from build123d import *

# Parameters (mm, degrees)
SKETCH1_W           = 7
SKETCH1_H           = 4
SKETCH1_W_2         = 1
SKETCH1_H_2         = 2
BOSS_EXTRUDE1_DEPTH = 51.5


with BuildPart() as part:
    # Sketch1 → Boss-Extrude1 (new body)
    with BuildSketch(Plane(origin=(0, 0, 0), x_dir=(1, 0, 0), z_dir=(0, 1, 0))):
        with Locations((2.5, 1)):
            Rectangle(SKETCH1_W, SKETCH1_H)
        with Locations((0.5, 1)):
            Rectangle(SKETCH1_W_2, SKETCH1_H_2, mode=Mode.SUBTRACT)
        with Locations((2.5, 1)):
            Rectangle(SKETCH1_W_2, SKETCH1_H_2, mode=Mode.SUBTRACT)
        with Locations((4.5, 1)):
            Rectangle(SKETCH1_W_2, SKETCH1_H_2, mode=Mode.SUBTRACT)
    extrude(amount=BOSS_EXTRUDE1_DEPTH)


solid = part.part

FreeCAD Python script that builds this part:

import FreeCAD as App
import Part
import Sketcher
from FreeCAD import Vector


def add_polygon(sketch, points):
    """Adds a closed chain of lines whose ends are joined by coincident constraints."""
    first, n = sketch.GeometryCount, len(points)
    for a, b in zip(points, points[1:] + points[:1]):
        sketch.addGeometry(Part.LineSegment(App.Vector(*a, 0), App.Vector(*b, 0)), False)
    for i in range(n):
        sketch.addConstraint(Sketcher.Constraint("Coincident", first + i, 2, first + (i + 1) % n, 1))

doc = App.newDocument("Part")
body = doc.addObject("PartDesign::Body", "Body")

# Sketch on XZ plane
sketch1 = body.newObject("Sketcher::SketchObject", "Sketch")
sketch1.AttachmentSupport = (doc.getObject("XZ_Plane"), [""])
sketch1.MapMode = "FlatFace"
add_polygon(sketch1, [(-1, -3), (-1, 1), (6, 1), (6, -3)])  # lines 0-3
add_polygon(sketch1, [(1, 0), (0, 0), (0, -2), (1, -2)])  # lines 4-7
add_polygon(sketch1, [(3, 0), (2, 0), (2, -2), (3, -2)])  # lines 8-11
add_polygon(sketch1, [(5, 0), (4, 0), (4, -2), (5, -2)])  # lines 12-15
sketch1.addConstraint([
    Sketcher.Constraint("Vertical", 0),
    Sketcher.Constraint("Horizontal", 1),
    Sketcher.Constraint("Vertical", 2),
    Sketcher.Constraint("Horizontal", 3),
    Sketcher.Constraint("Horizontal", 4),
    Sketcher.Constraint("Vertical", 5),
    Sketcher.Constraint("Horizontal", 6),
    Sketcher.Constraint("Vertical", 7),
    Sketcher.Constraint("Horizontal", 8),
    Sketcher.Constraint("Vertical", 9),
    Sketcher.Constraint("Horizontal", 10),
    Sketcher.Constraint("Vertical", 11),
    Sketcher.Constraint("Horizontal", 12),
    Sketcher.Constraint("Vertical", 13),
    Sketcher.Constraint("Horizontal", 14),
    Sketcher.Constraint("Vertical", 15),
    Sketcher.Constraint("Coincident", 4, 2, -1, 1),
    Sketcher.Constraint("PointOnObject", 8, 2, -1),
    Sketcher.Constraint("PointOnObject", 12, 2, -1),
    Sketcher.Constraint("Horizontal", 6, 2, 9, 2),
    Sketcher.Constraint("Horizontal", 10, 2, 13, 2),
    Sketcher.Constraint("Equal", 6, 8),
    Sketcher.Constraint("Equal", 10, 12),
    Sketcher.Constraint("DistanceX", 1, 1, 1, 2, 7.0),
    Sketcher.Constraint("DistanceX", 4, 2, 4, 1, 1.0),
    Sketcher.Constraint("DistanceY", 0, 1, 0, 2, 4.0),
    Sketcher.Constraint("DistanceY", 5, 2, 5, 1, 2.0),
    Sketcher.Constraint("DistanceX", 0, 2, -1, 1, 1.0),
    Sketcher.Constraint("DistanceY", -1, 1, 0, 2, 1.0),
    Sketcher.Constraint("DistanceX", -1, 1, 8, 2, 2.0),
    Sketcher.Constraint("DistanceX", -1, 1, 12, 2, 4.0),
])
pad1 = body.newObject("PartDesign::Pad", "Pad")
pad1.Profile = sketch1
pad1.Length = 51.5
pad1.Reversed = True

doc.recompute()
